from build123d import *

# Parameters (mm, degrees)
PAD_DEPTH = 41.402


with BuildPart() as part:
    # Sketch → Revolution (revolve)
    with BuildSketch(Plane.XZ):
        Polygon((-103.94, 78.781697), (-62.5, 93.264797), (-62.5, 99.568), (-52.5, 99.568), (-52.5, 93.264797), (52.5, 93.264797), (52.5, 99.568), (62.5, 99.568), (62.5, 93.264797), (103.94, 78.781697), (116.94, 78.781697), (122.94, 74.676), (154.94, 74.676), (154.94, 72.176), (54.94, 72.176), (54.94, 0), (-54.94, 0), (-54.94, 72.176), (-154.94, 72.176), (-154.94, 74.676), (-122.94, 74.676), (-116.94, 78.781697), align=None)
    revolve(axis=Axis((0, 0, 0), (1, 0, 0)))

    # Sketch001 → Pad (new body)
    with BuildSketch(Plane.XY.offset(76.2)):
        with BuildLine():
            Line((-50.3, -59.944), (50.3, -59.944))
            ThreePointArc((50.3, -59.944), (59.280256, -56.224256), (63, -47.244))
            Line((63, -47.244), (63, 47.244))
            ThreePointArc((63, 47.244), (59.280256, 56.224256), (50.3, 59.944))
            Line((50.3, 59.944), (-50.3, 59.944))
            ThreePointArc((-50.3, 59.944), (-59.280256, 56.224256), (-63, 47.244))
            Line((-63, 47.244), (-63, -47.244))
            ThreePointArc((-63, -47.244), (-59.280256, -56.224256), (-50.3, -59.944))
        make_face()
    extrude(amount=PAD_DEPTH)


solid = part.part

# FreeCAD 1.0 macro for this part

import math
import FreeCAD as App
import Part
import Sketcher

doc = App.newDocument("Part")
body = doc.addObject("PartDesign::Body", "Body")

sketch1 = body.newObject("Sketcher::SketchObject", "Sketch")
sketch1.AttachmentSupport = (doc.getObject("XZ_Plane"), [""])
sketch1.MapMode = "FlatFace"
sketch1.addGeometry([
    Part.LineSegment(App.Vector(-62.5, 93.3, 0), App.Vector(-103.9, 78.8, 0)),
    Part.LineSegment(App.Vector(-103.9, 78.8, 0), App.Vector(-116.9, 78.8, 0)),
    Part.LineSegment(App.Vector(-116.9, 78.8, 0), App.Vector(-122.9, 74.7, 0)),
    Part.LineSegment(App.Vector(-122.9, 74.7, 0), App.Vector(-154.9, 74.7, 0)),
    Part.LineSegment(App.Vector(-154.9, 74.7, 0), App.Vector(-154.9, 72.2, 0)),
    Part.LineSegment(App.Vector(-154.9, 72.2, 0), App.Vector(-54.9, 72.2, 0)),
    Part.LineSegment(App.Vector(-54.9, 72.2, 0), App.Vector(-54.9, 0, 0)),
    Part.LineSegment(App.Vector(-54.9, 0, 0), App.Vector(54.9, 0, 0)),
    Part.LineSegment(App.Vector(54.9, 0, 0), App.Vector(54.9, 72.2, 0)),
    Part.LineSegment(App.Vector(54.9, 72.2, 0), App.Vector(154.9, 72.2, 0)),
    Part.LineSegment(App.Vector(154.9, 72.2, 0), App.Vector(154.9, 74.7, 0)),
    Part.LineSegment(App.Vector(154.9, 74.7, 0), App.Vector(122.9, 74.7, 0)),
    Part.LineSegment(App.Vector(122.9, 74.7, 0), App.Vector(116.9, 78.8, 0)),
    Part.LineSegment(App.Vector(116.9, 78.8, 0), App.Vector(103.9, 78.8, 0)),
    Part.LineSegment(App.Vector(103.9, 78.8, 0), App.Vector(62.5, 93.3, 0)),
    Part.LineSegment(App.Vector(62.5, 93.3, 0), App.Vector(62.5, 99.6, 0)),
    Part.LineSegment(App.Vector(62.5, 99.6, 0), App.Vector(52.5, 99.6, 0)),
    Part.LineSegment(App.Vector(52.5, 99.6, 0), App.Vector(52.5, 93.3, 0)),
    Part.LineSegment(App.Vector(52.5, 93.3, 0), App.Vector(-52.5, 93.3, 0)),
    Part.LineSegment(App.Vector(-52.5, 93.3, 0), App.Vector(-52.5, 99.6, 0)),
    Part.LineSegment(App.Vector(-52.5, 99.6, 0), App.Vector(-62.5, 99.6, 0)),
    Part.LineSegment(App.Vector(-62.5, 99.6, 0), App.Vector(-62.5, 93.3, 0)),
], False)
sketch1.addConstraint([
    Sketcher.Constraint("Coincident", 0, 2, 1, 1),
    Sketcher.Constraint("Coincident", 1, 2, 2, 1),
    Sketcher.Constraint("Coincident", 2, 2, 3, 1),
    Sketcher.Constraint("Coincident", 3, 2, 4, 1),
    Sketcher.Constraint("Coincident", 4, 2, 5, 1),
    Sketcher.Constraint("Coincident", 5, 2, 6, 1),
    Sketcher.Constraint("Coincident", 6, 2, 7, 1),
    Sketcher.Constraint("Coincident", 7, 2, 8, 1),
    Sketcher.Constraint("Coincident", 8, 2, 9, 1),
    Sketcher.Constraint("Coincident", 9, 2, 10, 1),
    Sketcher.Constraint("Coincident", 10, 2, 11, 1),
    Sketcher.Constraint("Coincident", 11, 2, 12, 1),
    Sketcher.Constraint("Coincident", 12, 2, 13, 1),
    Sketcher.Constraint("Coincident", 13, 2, 14, 1),
    Sketcher.Constraint("Coincident", 14, 2, 15, 1),
    Sketcher.Constraint("Coincident", 15, 2, 16, 1),
    Sketcher.Constraint("Coincident", 16, 2, 17, 1),
    Sketcher.Constraint("Coincident", 17, 2, 18, 1),
    Sketcher.Constraint("Coincident", 18, 2, 19, 1),
    Sketcher.Constraint("Coincident", 19, 2, 20, 1),
    Sketcher.Constraint("Coincident", 20, 2, 21, 1),
    Sketcher.Constraint("Coincident", 21, 2, 0, 1),
    Sketcher.Constraint("Horizontal", 1),
    Sketcher.Constraint("Horizontal", 3),
    Sketcher.Constraint("Vertical", 4),
    Sketcher.Constraint("Horizontal", 5),
    Sketcher.Constraint("Vertical", 6),
    Sketcher.Constraint("Horizontal", 7),
    Sketcher.Constraint("Vertical", 8),
    Sketcher.Constraint("Horizontal", 9),
    Sketcher.Constraint("Vertical", 10),
    Sketcher.Constraint("Horizontal", 11),
    Sketcher.Constraint("Horizontal", 13),
    Sketcher.Constraint("Vertical", 15),
    Sketcher.Constraint("Horizontal", 16),
    Sketcher.Constraint("Vertical", 17),
    Sketcher.Constraint("Horizontal", 18),
    Sketcher.Constraint("Vertical", 19),
    Sketcher.Constraint("Horizontal", 20),
    Sketcher.Constraint("Vertical", 21),
    Sketcher.Constraint("Symmetric", 6, 2, 7, 2, -1, 1),
    Sketcher.Constraint("Symmetric", 4, 2, 9, 2, -2),
    Sketcher.Constraint("Symmetric", 2, 2, 11, 2, -2),
    Sketcher.Constraint("Symmetric", 1, 2, 12, 2, -2),
    Sketcher.Constraint("Symmetric", 16, 2, 19, 2, -2),
    Sketcher.Constraint("Symmetric", 14, 2, 21, 2, -2),
    Sketcher.Constraint("Horizontal", 14, 2, 17, 2),
    Sketcher.Constraint("Equal", 1, 13),
    Sketcher.Constraint("DistanceX", 1, 2, 1, 1, 13.0),
    Sketcher.Constraint("DistanceX", 3, 2, 3, 1, 32.0),
    Sketcher.Constraint("DistanceX", 5, 1, 5, 2, 100.0),
    Sketcher.Constraint("DistanceX", 16, 2, 16, 1, 10.0),
    Sketcher.Constraint("DistanceX", 18, 2, 18, 1, 105.0),
    Sketcher.Constraint("DistanceY", 4, 2, 4, 1, 2.5),
    Sketcher.Constraint("DistanceX", 2, 2, 1, 2, 6.0),
    Sketcher.Constraint("DistanceX", 7, 1, 7, 2, 109.88),
    Sketcher.Constraint("DistanceY", 6, 2, 6, 1, 72.176),
    Sketcher.Constraint("DistanceY", -1, 1, 15, 2, 99.568),
    Sketcher.Constraint("DistanceY", 13, 2, 14, 2, 14.4831),
    Sketcher.Constraint("DistanceY", 15, 1, 15, 2, 6.303203),
])
revolution = body.newObject("PartDesign::Revolution", "Revolution")
revolution.Profile = sketch1
revolution.ReferenceAxis = (sketch1, ["H_Axis"])
revolution.Angle = 360

sketch2 = body.newObject("Sketcher::SketchObject", "Sketch001")
sketch2.AttachmentSupport = (doc.getObject("XY_Plane"), [""])
sketch2.MapMode = "FlatFace"
sketch2.AttachmentOffset = App.Placement(App.Vector(0, 0, 76.2), App.Rotation())
sketch2.addGeometry([
    Part.LineSegment(App.Vector(-50, -60, 0), App.Vector(50, -60, 0)),
    Part.ArcOfCircle(Part.Circle(App.Vector(50, -47, 0), App.Vector(0, 0, 1), 13), math.radians(-90), math.radians(0)),
    Part.LineSegment(App.Vector(63, -47, 0), App.Vector(63, 47, 0)),
    Part.ArcOfCircle(Part.Circle(App.Vector(50, 47, 0), App.Vector(0, 0, 1), 13), math.radians(0), math.radians(90)),
    Part.LineSegment(App.Vector(50, 60, 0), App.Vector(-50, 60, 0)),
    Part.ArcOfCircle(Part.Circle(App.Vector(-50, 47, 0), App.Vector(0, 0, 1), 13), math.radians(90), math.radians(180)),
    Part.LineSegment(App.Vector(-63, 47, 0), App.Vector(-63, -47, 0)),
    Part.ArcOfCircle(Part.Circle(App.Vector(-50, -47, 0), App.Vector(0, 0, 1), 13), math.radians(-180), math.radians(-90)),
], False)
sketch2.addConstraint([
    Sketcher.Constraint("Tangent", 0, 2, 1, 1),
    Sketcher.Constraint("Tangent", 1, 2, 2, 1),
    Sketcher.Constraint("Tangent", 2, 2, 3, 1),
    Sketcher.Constraint("Tangent", 3, 2, 4, 1),
    Sketcher.Constraint("Tangent", 4, 2, 5, 1),
    Sketcher.Constraint("Tangent", 5, 2, 6, 1),
    Sketcher.Constraint("Tangent", 6, 2, 7, 1),
    Sketcher.Constraint("Tangent", 7, 2, 0, 1),
    Sketcher.Constraint("Horizontal", 0),
    Sketcher.Constraint("Vertical", 2),
    Sketcher.Constraint("Horizontal", 4),
    Sketcher.Constraint("Vertical", 6),
    Sketcher.Constraint("Equal", 1, 3),
    Sketcher.Constraint("Equal", 3, 5),
    Sketcher.Constraint("Equal", 5, 7),
    Sketcher.Constraint("Symmetric", 1, 3, 5, 3, -1, 1),
    Sketcher.Constraint("Radius", 1, 12.7),
    Sketcher.Constraint("DistanceX", 0, 1, 0, 2, 100.6),
    Sketcher.Constraint("DistanceY", 2, 1, 2, 2, 94.488),
])
pad1 = body.newObject("PartDesign::Pad", "Pad")
pad1.Profile = sketch2
pad1.Length = 41.402

doc.recompute()
